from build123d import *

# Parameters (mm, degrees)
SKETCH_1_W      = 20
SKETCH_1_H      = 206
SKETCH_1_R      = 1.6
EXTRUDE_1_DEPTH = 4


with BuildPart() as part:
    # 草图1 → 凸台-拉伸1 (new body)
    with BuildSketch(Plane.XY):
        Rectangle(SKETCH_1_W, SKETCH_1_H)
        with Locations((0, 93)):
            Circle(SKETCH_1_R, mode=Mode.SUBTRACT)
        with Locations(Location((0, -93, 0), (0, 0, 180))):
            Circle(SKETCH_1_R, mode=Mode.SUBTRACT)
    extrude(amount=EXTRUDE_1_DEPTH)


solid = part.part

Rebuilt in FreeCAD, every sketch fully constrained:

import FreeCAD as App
import Part
import Sketcher


def add_polygon(sketch, points):
    """Adds a closed chain of lines whose ends are joined by coincident constraints."""
    first, n = sketch.GeometryCount, len(points)
    for a, b in zip(points, points[1:] + points[:1]):
        sketch.addGeometry(Part.LineSegment(App.Vector(*a, 0), App.Vector(*b, 0)), False)
    for i in range(n):
        sketch.addConstraint(Sketcher.Constraint("Coincident", first + i, 2, first + (i + 1) % n, 1))

doc = App.newDocument("Part")
params = doc.addObject("Spreadsheet::Sheet", "Params")
for row, (alias, value) in enumerate([
    ("sketch1_diameter", "3.2 mm"),
    ("sketch1_width", "20 mm"),
    ("sketch1_height", "206 mm"),
    ("pad1_length", "4 mm"),
], start=1):
    params.set(f"A{row}", alias)
    params.set(f"B{row}", "=" + value)
    params.setAlias(f"B{row}", alias)

body = doc.addObject("PartDesign::Body", "Body")

# Sketch on XY plane
sketch1 = body.newObject("Sketcher::SketchObject", "Sketch")
sketch1.AttachmentSupport = (doc.getObject("XY_Plane"), [""])
sketch1.MapMode = "FlatFace"
add_polygon(sketch1, [(-10, 103), (-10, -103), (10, -103), (10, 103)])  # lines 0-3
sketch1.addGeometry(Part.Circle(App.Vector(0, -93, 0), App.Vector(0, 0, 1), 1.6), False)  # 4
sketch1.addGeometry(Part.Circle(App.Vector(0, 93, 0), App.Vector(0, 0, 1), 1.6), False)  # 5
sketch1.addConstraint([
    Sketcher.Constraint("Vertical", 0),
    Sketcher.Constraint("Horizontal", 1),
    Sketcher.Constraint("Vertical", 2),
    Sketcher.Constraint("Horizontal", 3),
    Sketcher.Constraint("Equal", 4, 5),
    Sketcher.Constraint("Symmetric", 4, 3, 5, 3, -1, 1),
    Sketcher.Constraint("Symmetric", 0, 2, 2, 2, -1, 1),
    Sketcher.Constraint("PointOnObject", 4, 3, -2),
    Sketcher.Constraint("Diameter", 4, 3.2),
    Sketcher.Constraint("DistanceX", 1, 1, 1, 2, 20.0),
    Sketcher.Constraint("DistanceY", 0, 2, 0, 1, 206.0),
    Sketcher.Constraint("DistanceY", 4, 3, -1, 1, 93.0),
])
sketch1.setExpression("Constraints[12]", "Params.sketch1_diameter")
sketch1.setExpression("Constraints[13]", "Params.sketch1_width")
sketch1.setExpression("Constraints[14]", "Params.sketch1_height")
pad1 = body.newObject("PartDesign::Pad", "Pad")
pad1.Profile = sketch1
pad1.setExpression("Length", "Params.pad1_length")

doc.recompute()
